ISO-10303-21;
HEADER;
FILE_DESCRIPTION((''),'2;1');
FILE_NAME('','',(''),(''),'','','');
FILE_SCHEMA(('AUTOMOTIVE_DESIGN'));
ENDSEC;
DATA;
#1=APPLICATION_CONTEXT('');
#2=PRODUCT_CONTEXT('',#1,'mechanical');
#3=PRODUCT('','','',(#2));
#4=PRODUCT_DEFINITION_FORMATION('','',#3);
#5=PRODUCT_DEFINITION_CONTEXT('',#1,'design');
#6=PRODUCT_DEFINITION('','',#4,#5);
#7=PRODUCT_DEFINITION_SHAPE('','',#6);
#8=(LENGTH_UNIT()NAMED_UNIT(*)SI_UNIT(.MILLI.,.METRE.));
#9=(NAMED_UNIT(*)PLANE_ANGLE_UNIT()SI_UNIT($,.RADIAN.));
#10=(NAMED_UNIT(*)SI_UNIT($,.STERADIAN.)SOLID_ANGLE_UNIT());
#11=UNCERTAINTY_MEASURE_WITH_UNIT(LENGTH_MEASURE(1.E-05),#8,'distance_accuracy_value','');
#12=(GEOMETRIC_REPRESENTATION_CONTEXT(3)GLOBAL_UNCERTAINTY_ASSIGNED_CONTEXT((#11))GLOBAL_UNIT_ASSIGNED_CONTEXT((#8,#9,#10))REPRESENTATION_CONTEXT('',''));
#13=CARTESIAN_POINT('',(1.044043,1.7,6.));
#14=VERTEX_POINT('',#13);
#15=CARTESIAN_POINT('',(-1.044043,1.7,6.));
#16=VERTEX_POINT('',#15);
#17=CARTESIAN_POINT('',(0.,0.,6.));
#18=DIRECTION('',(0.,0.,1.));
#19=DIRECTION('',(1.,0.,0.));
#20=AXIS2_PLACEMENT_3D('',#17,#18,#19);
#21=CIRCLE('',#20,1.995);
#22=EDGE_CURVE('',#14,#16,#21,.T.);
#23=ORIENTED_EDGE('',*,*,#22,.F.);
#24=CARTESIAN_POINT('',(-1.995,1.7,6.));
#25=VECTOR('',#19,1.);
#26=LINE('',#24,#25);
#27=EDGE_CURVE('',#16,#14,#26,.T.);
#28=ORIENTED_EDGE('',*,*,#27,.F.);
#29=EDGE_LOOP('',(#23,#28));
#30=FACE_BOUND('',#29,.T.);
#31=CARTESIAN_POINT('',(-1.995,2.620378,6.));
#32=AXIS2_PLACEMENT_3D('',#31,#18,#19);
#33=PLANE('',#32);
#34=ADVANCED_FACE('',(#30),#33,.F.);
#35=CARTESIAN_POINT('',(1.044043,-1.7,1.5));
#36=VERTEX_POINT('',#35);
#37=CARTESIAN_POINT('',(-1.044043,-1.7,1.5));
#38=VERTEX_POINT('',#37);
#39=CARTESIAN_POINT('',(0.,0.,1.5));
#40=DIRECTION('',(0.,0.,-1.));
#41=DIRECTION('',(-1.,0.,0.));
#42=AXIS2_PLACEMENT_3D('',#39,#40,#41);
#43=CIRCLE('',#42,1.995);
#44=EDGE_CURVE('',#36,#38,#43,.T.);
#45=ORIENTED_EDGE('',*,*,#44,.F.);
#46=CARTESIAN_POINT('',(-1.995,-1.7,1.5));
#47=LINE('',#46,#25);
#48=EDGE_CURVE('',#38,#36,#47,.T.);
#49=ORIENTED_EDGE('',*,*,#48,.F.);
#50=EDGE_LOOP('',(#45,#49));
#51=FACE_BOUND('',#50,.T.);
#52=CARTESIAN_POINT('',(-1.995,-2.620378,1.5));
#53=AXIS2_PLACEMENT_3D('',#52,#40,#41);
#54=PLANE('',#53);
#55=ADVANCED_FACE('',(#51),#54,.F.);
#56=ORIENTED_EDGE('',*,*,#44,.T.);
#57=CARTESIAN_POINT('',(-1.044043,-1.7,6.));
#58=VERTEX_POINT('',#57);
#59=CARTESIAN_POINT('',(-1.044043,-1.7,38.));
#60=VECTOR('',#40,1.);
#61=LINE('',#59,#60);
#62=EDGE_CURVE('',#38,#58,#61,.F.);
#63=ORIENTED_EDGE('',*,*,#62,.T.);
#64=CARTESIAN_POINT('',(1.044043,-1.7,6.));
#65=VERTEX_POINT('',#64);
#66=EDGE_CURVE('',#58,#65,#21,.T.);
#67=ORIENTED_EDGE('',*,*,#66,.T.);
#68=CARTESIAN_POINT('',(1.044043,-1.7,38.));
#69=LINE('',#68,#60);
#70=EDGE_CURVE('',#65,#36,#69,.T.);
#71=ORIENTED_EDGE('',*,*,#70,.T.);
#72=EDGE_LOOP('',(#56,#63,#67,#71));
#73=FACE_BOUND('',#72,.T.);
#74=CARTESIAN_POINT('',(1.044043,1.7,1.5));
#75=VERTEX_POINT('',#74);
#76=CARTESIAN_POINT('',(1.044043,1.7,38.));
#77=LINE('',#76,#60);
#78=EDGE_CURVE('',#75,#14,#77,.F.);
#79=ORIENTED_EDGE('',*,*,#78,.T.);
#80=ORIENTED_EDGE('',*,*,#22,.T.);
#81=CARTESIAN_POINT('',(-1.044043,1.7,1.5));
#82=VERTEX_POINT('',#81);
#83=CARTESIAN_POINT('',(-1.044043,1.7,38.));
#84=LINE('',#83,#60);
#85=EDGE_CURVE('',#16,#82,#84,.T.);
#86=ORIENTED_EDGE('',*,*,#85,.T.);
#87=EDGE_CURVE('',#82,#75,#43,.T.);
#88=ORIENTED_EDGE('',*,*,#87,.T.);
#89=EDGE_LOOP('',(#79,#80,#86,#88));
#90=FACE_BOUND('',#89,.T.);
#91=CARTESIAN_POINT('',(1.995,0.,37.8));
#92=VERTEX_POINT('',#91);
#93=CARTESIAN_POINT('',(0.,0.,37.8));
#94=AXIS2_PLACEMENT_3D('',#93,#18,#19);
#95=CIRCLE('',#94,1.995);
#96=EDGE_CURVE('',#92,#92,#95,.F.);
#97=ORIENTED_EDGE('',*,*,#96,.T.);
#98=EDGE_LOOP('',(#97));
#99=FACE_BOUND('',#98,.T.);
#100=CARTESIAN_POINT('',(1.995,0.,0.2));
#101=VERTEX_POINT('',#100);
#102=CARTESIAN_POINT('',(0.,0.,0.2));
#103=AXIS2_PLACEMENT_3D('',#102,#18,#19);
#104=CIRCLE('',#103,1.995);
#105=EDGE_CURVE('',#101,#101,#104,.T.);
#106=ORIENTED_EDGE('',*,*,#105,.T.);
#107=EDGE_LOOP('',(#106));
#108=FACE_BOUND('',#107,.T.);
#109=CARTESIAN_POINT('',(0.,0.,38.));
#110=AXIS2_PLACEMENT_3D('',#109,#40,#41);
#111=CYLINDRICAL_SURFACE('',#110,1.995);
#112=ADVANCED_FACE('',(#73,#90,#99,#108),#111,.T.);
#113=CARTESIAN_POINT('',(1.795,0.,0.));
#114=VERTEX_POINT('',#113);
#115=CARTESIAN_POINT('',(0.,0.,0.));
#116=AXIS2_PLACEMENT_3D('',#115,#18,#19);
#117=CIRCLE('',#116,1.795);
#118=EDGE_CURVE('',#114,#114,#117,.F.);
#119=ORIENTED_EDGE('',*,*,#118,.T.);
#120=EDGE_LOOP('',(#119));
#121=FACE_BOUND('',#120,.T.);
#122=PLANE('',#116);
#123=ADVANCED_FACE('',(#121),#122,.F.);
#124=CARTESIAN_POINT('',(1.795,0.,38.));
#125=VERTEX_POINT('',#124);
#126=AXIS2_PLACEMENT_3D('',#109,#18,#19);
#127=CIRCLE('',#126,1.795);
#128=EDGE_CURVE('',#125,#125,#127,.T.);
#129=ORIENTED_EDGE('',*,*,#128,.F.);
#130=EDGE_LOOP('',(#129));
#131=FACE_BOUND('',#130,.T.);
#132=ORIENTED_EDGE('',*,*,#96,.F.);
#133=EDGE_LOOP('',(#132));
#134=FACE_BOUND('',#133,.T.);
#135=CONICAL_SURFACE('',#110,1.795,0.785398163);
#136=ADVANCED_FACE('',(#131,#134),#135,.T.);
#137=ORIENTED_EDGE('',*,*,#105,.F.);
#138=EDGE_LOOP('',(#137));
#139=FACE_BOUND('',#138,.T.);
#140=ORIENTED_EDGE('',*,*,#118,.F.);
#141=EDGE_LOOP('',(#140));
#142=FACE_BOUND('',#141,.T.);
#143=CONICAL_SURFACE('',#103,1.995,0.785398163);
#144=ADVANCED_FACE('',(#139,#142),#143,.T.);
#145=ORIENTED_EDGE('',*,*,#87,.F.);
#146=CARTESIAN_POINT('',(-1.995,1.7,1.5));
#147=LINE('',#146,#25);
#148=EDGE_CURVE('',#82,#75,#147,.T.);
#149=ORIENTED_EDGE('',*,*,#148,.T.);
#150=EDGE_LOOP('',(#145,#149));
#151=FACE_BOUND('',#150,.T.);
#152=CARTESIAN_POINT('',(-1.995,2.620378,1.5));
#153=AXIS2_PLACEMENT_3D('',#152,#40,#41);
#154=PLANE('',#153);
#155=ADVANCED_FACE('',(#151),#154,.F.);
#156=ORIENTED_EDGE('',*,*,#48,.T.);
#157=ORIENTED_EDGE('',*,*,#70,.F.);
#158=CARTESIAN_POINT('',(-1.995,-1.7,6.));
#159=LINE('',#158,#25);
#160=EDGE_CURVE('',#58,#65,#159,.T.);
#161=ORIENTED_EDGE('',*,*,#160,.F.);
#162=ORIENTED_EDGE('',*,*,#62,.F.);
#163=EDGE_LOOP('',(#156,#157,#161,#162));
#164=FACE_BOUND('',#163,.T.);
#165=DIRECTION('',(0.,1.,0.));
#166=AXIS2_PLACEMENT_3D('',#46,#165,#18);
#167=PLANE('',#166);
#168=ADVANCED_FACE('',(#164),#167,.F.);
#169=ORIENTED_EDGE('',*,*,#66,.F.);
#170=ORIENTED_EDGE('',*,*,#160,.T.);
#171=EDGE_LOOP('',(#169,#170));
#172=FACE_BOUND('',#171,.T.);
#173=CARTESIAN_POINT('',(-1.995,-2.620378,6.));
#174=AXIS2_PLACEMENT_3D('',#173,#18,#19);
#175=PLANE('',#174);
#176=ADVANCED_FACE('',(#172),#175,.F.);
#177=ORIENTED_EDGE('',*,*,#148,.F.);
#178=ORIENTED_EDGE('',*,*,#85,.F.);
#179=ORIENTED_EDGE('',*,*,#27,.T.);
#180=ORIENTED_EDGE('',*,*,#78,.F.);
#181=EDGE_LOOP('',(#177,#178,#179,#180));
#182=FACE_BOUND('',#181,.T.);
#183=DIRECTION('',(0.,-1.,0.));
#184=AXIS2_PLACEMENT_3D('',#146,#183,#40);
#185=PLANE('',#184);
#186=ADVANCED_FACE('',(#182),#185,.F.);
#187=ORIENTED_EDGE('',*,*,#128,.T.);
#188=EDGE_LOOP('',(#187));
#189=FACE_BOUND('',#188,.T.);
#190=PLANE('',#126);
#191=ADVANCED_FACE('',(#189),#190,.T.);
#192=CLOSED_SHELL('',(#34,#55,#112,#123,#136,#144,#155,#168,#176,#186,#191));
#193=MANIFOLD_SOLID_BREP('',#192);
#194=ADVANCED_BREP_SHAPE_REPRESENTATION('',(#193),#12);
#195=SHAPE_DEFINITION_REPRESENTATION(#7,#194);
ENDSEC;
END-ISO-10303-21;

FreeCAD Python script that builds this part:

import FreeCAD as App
import Part
import Sketcher


def edges_at(feature, points):
    """Names of the edges that pass closest to the given points."""
    edges = feature.Shape.Edges
    near = lambda p: min(range(len(edges)), key=lambda i: edges[i].distToShape(Part.Vertex(*p))[0])
    return sorted({f"Edge{near(p) + 1}" for p in points})


def add_polygon(sketch, points):
    """Adds a closed chain of lines whose ends are joined by coincident constraints."""
    first, n = sketch.GeometryCount, len(points)
    for a, b in zip(points, points[1:] + points[:1]):
        sketch.addGeometry(Part.LineSegment(App.Vector(*a, 0), App.Vector(*b, 0)), False)
    for i in range(n):
        sketch.addConstraint(Sketcher.Constraint("Coincident", first + i, 2, first + (i + 1) % n, 1))

doc = App.newDocument("Part")
body = doc.addObject("PartDesign::Body", "Body")

sketch1 = doc.addObject("Sketcher::SketchObject", "Sketch")
body.addObject(sketch1)
sketch1.AttachmentSupport = (doc.XY_Plane, [""])
sketch1.MapMode = "FlatFace"
sketch1.addGeometry(Part.Circle(App.Vector(0, 0, 0), App.Vector(0, 0, 1), 2), False)
sketch1.addConstraint([
    Sketcher.Constraint("Coincident", 0, 3, -1, 1),
    Sketcher.Constraint("Diameter", 0, 3.99),
])
pad1 = doc.addObject("PartDesign::Pad", "Pad")
body.addObject(pad1)
pad1.Profile = sketch1
pad1.Length = 38

sketch2 = doc.addObject("Sketcher::SketchObject", "Sketch001")
body.addObject(sketch2)
sketch2.AttachmentSupport = (doc.YZ_Plane, [""])
sketch2.MapMode = "FlatFace"
add_polygon(sketch2, [(2.6, 6), (1.7, 6), (1.7, 1.5), (2.6, 1.5)])
add_polygon(sketch2, [(-1.7, 6), (-2.6, 6), (-2.6, 1.5), (-1.7, 1.5)])
sketch2.addConstraint([
    Sketcher.Constraint("Horizontal", 0),
    Sketcher.Constraint("Vertical", 1),
    Sketcher.Constraint("Horizontal", 2),
    Sketcher.Constraint("Vertical", 3),
    Sketcher.Constraint("Horizontal", 4),
    Sketcher.Constraint("Vertical", 5),
    Sketcher.Constraint("Horizontal", 6),
    Sketcher.Constraint("Vertical", 7),
    Sketcher.Constraint("Symmetric", 3, 2, 4, 2, -2),
    Sketcher.Constraint("Symmetric", 1, 2, 6, 2, -2),
    Sketcher.Constraint("DistanceY", 1, 2, 1, 1, 4.5),
    Sketcher.Constraint("DistanceY", -1, 1, 0, 2, 6.0),
    Sketcher.Constraint("DistanceX", -1, 1, 0, 2, 1.7),
    Sketcher.Constraint("DistanceX", 0, 2, 0, 1, 0.920378),
])
pocket1 = doc.addObject("PartDesign::Pocket", "Pocket")
body.addObject(pocket1)
pocket1.Profile = sketch2
pocket1.Type = "ThroughAll"
pocket1.Midplane = True
doc.recompute()

chamfer = doc.addObject("PartDesign::Chamfer", "Chamfer")
body.addObject(chamfer)
chamfer.Base = (pocket1, edges_at(pocket1, [(-1.995, 0, 0), (-1.995, 0, 38)]))
chamfer.Size = 0.2

doc.recompute()
